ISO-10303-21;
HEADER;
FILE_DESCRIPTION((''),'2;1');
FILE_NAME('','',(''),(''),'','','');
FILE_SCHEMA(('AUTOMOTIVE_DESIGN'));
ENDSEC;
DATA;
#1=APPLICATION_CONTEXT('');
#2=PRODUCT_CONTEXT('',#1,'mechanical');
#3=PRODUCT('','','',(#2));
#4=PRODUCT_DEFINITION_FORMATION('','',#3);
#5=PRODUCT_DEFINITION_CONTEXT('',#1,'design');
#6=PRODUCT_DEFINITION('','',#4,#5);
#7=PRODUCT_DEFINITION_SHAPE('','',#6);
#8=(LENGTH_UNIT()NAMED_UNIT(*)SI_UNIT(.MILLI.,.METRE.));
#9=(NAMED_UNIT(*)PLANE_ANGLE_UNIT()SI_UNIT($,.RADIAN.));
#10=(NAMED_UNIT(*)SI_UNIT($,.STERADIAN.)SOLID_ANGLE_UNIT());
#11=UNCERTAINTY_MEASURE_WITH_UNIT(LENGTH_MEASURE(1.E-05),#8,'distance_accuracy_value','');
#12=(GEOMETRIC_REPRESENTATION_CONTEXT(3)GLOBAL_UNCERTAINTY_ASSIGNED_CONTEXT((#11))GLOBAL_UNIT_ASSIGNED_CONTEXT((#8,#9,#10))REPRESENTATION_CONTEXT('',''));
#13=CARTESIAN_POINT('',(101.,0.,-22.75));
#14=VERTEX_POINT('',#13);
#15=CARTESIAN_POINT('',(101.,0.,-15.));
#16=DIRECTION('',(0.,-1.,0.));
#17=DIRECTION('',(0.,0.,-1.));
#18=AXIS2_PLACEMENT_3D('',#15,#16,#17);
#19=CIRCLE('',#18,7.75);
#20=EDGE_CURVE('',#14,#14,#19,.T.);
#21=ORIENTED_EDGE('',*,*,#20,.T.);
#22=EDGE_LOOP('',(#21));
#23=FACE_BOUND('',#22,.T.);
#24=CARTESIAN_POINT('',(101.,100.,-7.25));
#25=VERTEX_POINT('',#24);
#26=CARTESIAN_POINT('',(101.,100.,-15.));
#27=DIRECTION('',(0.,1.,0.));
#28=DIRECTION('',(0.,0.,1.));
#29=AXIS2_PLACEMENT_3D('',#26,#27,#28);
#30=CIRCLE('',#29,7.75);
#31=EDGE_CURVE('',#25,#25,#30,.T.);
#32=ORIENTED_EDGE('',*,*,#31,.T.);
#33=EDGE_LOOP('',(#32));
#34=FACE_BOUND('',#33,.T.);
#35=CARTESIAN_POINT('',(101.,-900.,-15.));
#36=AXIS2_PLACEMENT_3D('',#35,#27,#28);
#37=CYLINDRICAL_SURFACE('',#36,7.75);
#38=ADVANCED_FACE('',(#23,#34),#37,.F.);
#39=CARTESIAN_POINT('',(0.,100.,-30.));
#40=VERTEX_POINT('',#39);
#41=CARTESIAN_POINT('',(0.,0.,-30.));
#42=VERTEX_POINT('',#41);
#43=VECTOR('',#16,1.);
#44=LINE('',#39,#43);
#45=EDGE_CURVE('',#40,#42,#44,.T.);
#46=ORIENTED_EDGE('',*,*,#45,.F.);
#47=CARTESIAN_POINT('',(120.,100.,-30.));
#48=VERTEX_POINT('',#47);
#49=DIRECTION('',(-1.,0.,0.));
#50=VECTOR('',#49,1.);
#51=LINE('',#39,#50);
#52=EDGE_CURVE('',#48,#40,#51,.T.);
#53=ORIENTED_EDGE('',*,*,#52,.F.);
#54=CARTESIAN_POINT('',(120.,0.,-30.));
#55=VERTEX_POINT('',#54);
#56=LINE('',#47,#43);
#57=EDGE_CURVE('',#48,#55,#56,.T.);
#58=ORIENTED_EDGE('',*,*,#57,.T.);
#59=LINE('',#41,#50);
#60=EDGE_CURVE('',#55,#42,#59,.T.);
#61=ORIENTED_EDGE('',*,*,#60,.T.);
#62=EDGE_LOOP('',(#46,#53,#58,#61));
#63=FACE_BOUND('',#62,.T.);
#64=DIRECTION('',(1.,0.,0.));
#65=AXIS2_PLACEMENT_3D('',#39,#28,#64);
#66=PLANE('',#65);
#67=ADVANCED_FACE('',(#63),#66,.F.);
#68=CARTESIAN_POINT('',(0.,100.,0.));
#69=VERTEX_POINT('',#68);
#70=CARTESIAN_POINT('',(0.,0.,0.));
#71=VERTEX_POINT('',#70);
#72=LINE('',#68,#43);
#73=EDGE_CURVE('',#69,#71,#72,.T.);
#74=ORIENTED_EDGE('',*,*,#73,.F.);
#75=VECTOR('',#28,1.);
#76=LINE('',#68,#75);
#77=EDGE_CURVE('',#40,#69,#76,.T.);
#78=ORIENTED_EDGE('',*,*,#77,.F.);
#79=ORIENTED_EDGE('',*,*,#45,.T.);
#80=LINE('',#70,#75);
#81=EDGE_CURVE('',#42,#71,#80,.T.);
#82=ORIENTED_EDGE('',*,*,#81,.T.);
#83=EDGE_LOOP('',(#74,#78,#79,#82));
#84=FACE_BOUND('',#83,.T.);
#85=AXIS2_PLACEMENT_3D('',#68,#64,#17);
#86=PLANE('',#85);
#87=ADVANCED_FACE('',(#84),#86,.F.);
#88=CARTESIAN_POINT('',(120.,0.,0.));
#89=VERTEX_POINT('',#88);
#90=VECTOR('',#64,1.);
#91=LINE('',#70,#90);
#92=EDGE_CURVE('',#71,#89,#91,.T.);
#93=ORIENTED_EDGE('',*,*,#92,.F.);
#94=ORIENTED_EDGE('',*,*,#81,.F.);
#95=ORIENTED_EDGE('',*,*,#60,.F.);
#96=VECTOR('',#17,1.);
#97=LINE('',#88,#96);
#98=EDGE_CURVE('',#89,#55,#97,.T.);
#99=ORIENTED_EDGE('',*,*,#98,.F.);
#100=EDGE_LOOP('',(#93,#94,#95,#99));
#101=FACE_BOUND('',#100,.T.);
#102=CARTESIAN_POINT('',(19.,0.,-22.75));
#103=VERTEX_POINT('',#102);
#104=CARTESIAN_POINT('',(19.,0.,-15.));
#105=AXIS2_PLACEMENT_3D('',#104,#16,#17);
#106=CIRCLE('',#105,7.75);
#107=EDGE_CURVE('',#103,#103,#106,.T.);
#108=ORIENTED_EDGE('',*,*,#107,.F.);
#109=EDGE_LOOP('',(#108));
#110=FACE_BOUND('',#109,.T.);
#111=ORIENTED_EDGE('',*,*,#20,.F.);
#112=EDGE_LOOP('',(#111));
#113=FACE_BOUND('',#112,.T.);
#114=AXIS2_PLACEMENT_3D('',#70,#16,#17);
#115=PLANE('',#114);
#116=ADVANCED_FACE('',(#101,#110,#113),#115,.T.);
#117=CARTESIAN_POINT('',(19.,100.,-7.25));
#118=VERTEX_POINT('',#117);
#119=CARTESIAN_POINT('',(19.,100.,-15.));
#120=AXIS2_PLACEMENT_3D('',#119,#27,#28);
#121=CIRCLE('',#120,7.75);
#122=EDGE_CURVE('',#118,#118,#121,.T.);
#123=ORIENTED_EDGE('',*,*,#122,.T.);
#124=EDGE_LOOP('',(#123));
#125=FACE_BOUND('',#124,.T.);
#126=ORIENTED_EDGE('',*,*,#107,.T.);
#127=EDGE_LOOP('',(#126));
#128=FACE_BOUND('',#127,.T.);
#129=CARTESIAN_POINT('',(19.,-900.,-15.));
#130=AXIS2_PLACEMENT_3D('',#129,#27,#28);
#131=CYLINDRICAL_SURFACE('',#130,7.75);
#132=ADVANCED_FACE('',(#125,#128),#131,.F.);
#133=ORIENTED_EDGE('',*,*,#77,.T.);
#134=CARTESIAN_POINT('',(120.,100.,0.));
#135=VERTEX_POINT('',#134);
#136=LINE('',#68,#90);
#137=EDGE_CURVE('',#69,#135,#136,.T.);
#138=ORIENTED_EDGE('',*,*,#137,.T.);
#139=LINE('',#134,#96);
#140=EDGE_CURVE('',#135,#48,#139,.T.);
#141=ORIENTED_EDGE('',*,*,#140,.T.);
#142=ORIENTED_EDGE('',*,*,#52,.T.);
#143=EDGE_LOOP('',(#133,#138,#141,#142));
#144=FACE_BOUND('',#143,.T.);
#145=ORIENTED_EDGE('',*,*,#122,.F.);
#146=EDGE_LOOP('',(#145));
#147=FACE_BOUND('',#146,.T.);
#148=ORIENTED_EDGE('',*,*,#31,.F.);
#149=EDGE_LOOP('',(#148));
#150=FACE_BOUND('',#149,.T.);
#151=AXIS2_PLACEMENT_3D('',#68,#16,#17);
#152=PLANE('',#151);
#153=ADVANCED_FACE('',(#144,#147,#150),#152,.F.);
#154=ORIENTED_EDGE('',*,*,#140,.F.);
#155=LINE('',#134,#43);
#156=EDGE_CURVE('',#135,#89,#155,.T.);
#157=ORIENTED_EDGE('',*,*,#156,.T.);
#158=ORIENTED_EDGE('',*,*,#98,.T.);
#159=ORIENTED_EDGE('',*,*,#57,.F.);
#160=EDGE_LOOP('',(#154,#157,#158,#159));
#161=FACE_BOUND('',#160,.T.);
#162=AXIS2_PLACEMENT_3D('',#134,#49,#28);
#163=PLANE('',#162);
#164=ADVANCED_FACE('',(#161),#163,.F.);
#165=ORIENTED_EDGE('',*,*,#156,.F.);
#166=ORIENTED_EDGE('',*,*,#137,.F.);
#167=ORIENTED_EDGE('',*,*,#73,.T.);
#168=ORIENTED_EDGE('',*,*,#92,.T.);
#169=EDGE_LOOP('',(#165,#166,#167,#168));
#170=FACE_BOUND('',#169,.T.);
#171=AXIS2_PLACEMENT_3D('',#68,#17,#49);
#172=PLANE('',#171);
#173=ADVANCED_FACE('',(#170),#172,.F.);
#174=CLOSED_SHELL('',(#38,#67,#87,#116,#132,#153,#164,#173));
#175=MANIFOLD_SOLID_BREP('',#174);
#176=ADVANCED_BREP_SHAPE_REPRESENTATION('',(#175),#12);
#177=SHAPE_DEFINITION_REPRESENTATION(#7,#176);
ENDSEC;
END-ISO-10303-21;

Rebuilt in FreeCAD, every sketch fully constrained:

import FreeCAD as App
import Part
import Sketcher
Q = App.Units.Quantity

doc = App.newDocument("Part")
body = doc.addObject("PartDesign::Body", "Body")

# Sketch on XZ plane
sketch1 = body.newObject("Sketcher::SketchObject", "Sketch")
sketch1.AttachmentSupport = (doc.getObject("XZ_Plane"), [""])
sketch1.MapMode = "FlatFace"
sketch1.addGeometry(Part.LineSegment(App.Vector(0, -30, 0), App.Vector(0, 0, 0)), False)
sketch1.addGeometry(Part.LineSegment(App.Vector(0, 0, 0), App.Vector(120, 0, 0)), False)
sketch1.addGeometry(Part.LineSegment(App.Vector(120, 0, 0), App.Vector(120, -30, 0)), False)
sketch1.addGeometry(Part.LineSegment(App.Vector(120, -30, 0), App.Vector(0, -30, 0)), False)
sketch1.addConstraint(Sketcher.Constraint("Coincident", 0, 2, 1, 1))
sketch1.addConstraint(Sketcher.Constraint("Coincident", 1, 2, 2, 1))
sketch1.addConstraint(Sketcher.Constraint("Coincident", 2, 2, 3, 1))
sketch1.addConstraint(Sketcher.Constraint("Coincident", 3, 2, 0, 1))
sketch1.addConstraint(Sketcher.Constraint("Vertical", 0))
sketch1.addConstraint(Sketcher.Constraint("Horizontal", 1))
sketch1.addConstraint(Sketcher.Constraint("Vertical", 2))
sketch1.addConstraint(Sketcher.Constraint("Horizontal", 3))
sketch1.addConstraint(Sketcher.Constraint("Coincident", 0, 2, -1, 1))
sketch1.addConstraint(Sketcher.Constraint("DistanceX", 1, 1, 1, 2, Q("120 mm")))
sketch1.addConstraint(Sketcher.Constraint("DistanceY", 0, 1, 0, 2, Q("30 mm")))
pad1 = body.newObject("PartDesign::Pad", "Pad")
pad1.Profile = sketch1
pad1.Length = 100
pad1.Reversed = True

# Sketch on XZ plane
sketch2 = body.newObject("Sketcher::SketchObject", "Sketch001")
sketch2.AttachmentSupport = (doc.getObject("XZ_Plane"), [""])
sketch2.MapMode = "FlatFace"
sketch2.AttachmentOffset = App.Placement(App.Vector(0, 0, -100), App.Rotation())
sketch2.addGeometry(Part.Circle(App.Vector(101, -15, 0), App.Vector(0, 0, 1), 8), False)
sketch2.addGeometry(Part.Circle(App.Vector(19, -15, 0), App.Vector(0, 0, 1), 8), False)
sketch2.addConstraint(Sketcher.Constraint("Equal", 0, 1))
sketch2.addConstraint(Sketcher.Constraint("Horizontal", 0, 3, 1, 3))
sketch2.addConstraint(Sketcher.Constraint("Diameter", 0, Q("15.5 mm")))
sketch2.addConstraint(Sketcher.Constraint("DistanceX", -1, 1, 0, 3, Q("101 mm")))
sketch2.addConstraint(Sketcher.Constraint("DistanceY", 0, 3, -1, 1, Q("15 mm")))
sketch2.addConstraint(Sketcher.Constraint("DistanceX", -1, 1, 1, 3, Q("19 mm")))
pocket1 = body.newObject("PartDesign::Pocket", "Pocket")
pocket1.Profile = sketch2
pocket1.Length = 1000
pocket1.Reversed = True

doc.recompute()
